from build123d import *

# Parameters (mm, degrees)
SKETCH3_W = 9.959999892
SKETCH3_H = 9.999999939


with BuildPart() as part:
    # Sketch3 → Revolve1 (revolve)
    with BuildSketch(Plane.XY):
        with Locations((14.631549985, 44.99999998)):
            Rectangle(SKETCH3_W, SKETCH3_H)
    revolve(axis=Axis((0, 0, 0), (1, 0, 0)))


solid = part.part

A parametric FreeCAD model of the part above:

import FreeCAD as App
import Part
import Sketcher
Q = App.Units.Quantity


def add_polygon(sketch, points):
    """Adds a closed chain of lines whose ends are joined by coincident constraints."""
    first, n = sketch.GeometryCount, len(points)
    for a, b in zip(points, points[1:] + points[:1]):
        sketch.addGeometry(Part.LineSegment(App.Vector(*a, 0), App.Vector(*b, 0)), False)
    for i in range(n):
        sketch.addConstraint(Sketcher.Constraint("Coincident", first + i, 2, first + (i + 1) % n, 1))

doc = App.newDocument("Part")
body = doc.addObject("PartDesign::Body", "Body")

# Sketch on XY plane
sketch1 = body.newObject("Sketcher::SketchObject", "Sketch")
sketch1.AttachmentSupport = (doc.getObject("XY_Plane"), [""])
sketch1.MapMode = "FlatFace"
add_polygon(sketch1, [(10, 50), (10, 40), (20, 40), (20, 50)])  # lines 0-3
sketch1.addConstraint(Sketcher.Constraint("Vertical", 0))
sketch1.addConstraint(Sketcher.Constraint("Horizontal", 1))
sketch1.addConstraint(Sketcher.Constraint("Vertical", 2))
sketch1.addConstraint(Sketcher.Constraint("Horizontal", 3))
sketch1.addConstraint(Sketcher.Constraint("DistanceY", 0, 2, 0, 1, Q("10 mm")))
sketch1.addConstraint(Sketcher.Constraint("DistanceY", -1, 1, 0, 2, Q("40 mm")))
sketch1.addConstraint(Sketcher.Constraint("DistanceX", 1, 1, 1, 2, Q("9.96 mm")))
sketch1.addConstraint(Sketcher.Constraint("DistanceX", -1, 1, 0, 2, Q("9.65155 mm")))
revolution = body.newObject("PartDesign::Revolution", "Revolution")
revolution.Profile = sketch1
revolution.ReferenceAxis = (sketch1, ["H_Axis"])
revolution.Angle = 360

doc.recompute()
